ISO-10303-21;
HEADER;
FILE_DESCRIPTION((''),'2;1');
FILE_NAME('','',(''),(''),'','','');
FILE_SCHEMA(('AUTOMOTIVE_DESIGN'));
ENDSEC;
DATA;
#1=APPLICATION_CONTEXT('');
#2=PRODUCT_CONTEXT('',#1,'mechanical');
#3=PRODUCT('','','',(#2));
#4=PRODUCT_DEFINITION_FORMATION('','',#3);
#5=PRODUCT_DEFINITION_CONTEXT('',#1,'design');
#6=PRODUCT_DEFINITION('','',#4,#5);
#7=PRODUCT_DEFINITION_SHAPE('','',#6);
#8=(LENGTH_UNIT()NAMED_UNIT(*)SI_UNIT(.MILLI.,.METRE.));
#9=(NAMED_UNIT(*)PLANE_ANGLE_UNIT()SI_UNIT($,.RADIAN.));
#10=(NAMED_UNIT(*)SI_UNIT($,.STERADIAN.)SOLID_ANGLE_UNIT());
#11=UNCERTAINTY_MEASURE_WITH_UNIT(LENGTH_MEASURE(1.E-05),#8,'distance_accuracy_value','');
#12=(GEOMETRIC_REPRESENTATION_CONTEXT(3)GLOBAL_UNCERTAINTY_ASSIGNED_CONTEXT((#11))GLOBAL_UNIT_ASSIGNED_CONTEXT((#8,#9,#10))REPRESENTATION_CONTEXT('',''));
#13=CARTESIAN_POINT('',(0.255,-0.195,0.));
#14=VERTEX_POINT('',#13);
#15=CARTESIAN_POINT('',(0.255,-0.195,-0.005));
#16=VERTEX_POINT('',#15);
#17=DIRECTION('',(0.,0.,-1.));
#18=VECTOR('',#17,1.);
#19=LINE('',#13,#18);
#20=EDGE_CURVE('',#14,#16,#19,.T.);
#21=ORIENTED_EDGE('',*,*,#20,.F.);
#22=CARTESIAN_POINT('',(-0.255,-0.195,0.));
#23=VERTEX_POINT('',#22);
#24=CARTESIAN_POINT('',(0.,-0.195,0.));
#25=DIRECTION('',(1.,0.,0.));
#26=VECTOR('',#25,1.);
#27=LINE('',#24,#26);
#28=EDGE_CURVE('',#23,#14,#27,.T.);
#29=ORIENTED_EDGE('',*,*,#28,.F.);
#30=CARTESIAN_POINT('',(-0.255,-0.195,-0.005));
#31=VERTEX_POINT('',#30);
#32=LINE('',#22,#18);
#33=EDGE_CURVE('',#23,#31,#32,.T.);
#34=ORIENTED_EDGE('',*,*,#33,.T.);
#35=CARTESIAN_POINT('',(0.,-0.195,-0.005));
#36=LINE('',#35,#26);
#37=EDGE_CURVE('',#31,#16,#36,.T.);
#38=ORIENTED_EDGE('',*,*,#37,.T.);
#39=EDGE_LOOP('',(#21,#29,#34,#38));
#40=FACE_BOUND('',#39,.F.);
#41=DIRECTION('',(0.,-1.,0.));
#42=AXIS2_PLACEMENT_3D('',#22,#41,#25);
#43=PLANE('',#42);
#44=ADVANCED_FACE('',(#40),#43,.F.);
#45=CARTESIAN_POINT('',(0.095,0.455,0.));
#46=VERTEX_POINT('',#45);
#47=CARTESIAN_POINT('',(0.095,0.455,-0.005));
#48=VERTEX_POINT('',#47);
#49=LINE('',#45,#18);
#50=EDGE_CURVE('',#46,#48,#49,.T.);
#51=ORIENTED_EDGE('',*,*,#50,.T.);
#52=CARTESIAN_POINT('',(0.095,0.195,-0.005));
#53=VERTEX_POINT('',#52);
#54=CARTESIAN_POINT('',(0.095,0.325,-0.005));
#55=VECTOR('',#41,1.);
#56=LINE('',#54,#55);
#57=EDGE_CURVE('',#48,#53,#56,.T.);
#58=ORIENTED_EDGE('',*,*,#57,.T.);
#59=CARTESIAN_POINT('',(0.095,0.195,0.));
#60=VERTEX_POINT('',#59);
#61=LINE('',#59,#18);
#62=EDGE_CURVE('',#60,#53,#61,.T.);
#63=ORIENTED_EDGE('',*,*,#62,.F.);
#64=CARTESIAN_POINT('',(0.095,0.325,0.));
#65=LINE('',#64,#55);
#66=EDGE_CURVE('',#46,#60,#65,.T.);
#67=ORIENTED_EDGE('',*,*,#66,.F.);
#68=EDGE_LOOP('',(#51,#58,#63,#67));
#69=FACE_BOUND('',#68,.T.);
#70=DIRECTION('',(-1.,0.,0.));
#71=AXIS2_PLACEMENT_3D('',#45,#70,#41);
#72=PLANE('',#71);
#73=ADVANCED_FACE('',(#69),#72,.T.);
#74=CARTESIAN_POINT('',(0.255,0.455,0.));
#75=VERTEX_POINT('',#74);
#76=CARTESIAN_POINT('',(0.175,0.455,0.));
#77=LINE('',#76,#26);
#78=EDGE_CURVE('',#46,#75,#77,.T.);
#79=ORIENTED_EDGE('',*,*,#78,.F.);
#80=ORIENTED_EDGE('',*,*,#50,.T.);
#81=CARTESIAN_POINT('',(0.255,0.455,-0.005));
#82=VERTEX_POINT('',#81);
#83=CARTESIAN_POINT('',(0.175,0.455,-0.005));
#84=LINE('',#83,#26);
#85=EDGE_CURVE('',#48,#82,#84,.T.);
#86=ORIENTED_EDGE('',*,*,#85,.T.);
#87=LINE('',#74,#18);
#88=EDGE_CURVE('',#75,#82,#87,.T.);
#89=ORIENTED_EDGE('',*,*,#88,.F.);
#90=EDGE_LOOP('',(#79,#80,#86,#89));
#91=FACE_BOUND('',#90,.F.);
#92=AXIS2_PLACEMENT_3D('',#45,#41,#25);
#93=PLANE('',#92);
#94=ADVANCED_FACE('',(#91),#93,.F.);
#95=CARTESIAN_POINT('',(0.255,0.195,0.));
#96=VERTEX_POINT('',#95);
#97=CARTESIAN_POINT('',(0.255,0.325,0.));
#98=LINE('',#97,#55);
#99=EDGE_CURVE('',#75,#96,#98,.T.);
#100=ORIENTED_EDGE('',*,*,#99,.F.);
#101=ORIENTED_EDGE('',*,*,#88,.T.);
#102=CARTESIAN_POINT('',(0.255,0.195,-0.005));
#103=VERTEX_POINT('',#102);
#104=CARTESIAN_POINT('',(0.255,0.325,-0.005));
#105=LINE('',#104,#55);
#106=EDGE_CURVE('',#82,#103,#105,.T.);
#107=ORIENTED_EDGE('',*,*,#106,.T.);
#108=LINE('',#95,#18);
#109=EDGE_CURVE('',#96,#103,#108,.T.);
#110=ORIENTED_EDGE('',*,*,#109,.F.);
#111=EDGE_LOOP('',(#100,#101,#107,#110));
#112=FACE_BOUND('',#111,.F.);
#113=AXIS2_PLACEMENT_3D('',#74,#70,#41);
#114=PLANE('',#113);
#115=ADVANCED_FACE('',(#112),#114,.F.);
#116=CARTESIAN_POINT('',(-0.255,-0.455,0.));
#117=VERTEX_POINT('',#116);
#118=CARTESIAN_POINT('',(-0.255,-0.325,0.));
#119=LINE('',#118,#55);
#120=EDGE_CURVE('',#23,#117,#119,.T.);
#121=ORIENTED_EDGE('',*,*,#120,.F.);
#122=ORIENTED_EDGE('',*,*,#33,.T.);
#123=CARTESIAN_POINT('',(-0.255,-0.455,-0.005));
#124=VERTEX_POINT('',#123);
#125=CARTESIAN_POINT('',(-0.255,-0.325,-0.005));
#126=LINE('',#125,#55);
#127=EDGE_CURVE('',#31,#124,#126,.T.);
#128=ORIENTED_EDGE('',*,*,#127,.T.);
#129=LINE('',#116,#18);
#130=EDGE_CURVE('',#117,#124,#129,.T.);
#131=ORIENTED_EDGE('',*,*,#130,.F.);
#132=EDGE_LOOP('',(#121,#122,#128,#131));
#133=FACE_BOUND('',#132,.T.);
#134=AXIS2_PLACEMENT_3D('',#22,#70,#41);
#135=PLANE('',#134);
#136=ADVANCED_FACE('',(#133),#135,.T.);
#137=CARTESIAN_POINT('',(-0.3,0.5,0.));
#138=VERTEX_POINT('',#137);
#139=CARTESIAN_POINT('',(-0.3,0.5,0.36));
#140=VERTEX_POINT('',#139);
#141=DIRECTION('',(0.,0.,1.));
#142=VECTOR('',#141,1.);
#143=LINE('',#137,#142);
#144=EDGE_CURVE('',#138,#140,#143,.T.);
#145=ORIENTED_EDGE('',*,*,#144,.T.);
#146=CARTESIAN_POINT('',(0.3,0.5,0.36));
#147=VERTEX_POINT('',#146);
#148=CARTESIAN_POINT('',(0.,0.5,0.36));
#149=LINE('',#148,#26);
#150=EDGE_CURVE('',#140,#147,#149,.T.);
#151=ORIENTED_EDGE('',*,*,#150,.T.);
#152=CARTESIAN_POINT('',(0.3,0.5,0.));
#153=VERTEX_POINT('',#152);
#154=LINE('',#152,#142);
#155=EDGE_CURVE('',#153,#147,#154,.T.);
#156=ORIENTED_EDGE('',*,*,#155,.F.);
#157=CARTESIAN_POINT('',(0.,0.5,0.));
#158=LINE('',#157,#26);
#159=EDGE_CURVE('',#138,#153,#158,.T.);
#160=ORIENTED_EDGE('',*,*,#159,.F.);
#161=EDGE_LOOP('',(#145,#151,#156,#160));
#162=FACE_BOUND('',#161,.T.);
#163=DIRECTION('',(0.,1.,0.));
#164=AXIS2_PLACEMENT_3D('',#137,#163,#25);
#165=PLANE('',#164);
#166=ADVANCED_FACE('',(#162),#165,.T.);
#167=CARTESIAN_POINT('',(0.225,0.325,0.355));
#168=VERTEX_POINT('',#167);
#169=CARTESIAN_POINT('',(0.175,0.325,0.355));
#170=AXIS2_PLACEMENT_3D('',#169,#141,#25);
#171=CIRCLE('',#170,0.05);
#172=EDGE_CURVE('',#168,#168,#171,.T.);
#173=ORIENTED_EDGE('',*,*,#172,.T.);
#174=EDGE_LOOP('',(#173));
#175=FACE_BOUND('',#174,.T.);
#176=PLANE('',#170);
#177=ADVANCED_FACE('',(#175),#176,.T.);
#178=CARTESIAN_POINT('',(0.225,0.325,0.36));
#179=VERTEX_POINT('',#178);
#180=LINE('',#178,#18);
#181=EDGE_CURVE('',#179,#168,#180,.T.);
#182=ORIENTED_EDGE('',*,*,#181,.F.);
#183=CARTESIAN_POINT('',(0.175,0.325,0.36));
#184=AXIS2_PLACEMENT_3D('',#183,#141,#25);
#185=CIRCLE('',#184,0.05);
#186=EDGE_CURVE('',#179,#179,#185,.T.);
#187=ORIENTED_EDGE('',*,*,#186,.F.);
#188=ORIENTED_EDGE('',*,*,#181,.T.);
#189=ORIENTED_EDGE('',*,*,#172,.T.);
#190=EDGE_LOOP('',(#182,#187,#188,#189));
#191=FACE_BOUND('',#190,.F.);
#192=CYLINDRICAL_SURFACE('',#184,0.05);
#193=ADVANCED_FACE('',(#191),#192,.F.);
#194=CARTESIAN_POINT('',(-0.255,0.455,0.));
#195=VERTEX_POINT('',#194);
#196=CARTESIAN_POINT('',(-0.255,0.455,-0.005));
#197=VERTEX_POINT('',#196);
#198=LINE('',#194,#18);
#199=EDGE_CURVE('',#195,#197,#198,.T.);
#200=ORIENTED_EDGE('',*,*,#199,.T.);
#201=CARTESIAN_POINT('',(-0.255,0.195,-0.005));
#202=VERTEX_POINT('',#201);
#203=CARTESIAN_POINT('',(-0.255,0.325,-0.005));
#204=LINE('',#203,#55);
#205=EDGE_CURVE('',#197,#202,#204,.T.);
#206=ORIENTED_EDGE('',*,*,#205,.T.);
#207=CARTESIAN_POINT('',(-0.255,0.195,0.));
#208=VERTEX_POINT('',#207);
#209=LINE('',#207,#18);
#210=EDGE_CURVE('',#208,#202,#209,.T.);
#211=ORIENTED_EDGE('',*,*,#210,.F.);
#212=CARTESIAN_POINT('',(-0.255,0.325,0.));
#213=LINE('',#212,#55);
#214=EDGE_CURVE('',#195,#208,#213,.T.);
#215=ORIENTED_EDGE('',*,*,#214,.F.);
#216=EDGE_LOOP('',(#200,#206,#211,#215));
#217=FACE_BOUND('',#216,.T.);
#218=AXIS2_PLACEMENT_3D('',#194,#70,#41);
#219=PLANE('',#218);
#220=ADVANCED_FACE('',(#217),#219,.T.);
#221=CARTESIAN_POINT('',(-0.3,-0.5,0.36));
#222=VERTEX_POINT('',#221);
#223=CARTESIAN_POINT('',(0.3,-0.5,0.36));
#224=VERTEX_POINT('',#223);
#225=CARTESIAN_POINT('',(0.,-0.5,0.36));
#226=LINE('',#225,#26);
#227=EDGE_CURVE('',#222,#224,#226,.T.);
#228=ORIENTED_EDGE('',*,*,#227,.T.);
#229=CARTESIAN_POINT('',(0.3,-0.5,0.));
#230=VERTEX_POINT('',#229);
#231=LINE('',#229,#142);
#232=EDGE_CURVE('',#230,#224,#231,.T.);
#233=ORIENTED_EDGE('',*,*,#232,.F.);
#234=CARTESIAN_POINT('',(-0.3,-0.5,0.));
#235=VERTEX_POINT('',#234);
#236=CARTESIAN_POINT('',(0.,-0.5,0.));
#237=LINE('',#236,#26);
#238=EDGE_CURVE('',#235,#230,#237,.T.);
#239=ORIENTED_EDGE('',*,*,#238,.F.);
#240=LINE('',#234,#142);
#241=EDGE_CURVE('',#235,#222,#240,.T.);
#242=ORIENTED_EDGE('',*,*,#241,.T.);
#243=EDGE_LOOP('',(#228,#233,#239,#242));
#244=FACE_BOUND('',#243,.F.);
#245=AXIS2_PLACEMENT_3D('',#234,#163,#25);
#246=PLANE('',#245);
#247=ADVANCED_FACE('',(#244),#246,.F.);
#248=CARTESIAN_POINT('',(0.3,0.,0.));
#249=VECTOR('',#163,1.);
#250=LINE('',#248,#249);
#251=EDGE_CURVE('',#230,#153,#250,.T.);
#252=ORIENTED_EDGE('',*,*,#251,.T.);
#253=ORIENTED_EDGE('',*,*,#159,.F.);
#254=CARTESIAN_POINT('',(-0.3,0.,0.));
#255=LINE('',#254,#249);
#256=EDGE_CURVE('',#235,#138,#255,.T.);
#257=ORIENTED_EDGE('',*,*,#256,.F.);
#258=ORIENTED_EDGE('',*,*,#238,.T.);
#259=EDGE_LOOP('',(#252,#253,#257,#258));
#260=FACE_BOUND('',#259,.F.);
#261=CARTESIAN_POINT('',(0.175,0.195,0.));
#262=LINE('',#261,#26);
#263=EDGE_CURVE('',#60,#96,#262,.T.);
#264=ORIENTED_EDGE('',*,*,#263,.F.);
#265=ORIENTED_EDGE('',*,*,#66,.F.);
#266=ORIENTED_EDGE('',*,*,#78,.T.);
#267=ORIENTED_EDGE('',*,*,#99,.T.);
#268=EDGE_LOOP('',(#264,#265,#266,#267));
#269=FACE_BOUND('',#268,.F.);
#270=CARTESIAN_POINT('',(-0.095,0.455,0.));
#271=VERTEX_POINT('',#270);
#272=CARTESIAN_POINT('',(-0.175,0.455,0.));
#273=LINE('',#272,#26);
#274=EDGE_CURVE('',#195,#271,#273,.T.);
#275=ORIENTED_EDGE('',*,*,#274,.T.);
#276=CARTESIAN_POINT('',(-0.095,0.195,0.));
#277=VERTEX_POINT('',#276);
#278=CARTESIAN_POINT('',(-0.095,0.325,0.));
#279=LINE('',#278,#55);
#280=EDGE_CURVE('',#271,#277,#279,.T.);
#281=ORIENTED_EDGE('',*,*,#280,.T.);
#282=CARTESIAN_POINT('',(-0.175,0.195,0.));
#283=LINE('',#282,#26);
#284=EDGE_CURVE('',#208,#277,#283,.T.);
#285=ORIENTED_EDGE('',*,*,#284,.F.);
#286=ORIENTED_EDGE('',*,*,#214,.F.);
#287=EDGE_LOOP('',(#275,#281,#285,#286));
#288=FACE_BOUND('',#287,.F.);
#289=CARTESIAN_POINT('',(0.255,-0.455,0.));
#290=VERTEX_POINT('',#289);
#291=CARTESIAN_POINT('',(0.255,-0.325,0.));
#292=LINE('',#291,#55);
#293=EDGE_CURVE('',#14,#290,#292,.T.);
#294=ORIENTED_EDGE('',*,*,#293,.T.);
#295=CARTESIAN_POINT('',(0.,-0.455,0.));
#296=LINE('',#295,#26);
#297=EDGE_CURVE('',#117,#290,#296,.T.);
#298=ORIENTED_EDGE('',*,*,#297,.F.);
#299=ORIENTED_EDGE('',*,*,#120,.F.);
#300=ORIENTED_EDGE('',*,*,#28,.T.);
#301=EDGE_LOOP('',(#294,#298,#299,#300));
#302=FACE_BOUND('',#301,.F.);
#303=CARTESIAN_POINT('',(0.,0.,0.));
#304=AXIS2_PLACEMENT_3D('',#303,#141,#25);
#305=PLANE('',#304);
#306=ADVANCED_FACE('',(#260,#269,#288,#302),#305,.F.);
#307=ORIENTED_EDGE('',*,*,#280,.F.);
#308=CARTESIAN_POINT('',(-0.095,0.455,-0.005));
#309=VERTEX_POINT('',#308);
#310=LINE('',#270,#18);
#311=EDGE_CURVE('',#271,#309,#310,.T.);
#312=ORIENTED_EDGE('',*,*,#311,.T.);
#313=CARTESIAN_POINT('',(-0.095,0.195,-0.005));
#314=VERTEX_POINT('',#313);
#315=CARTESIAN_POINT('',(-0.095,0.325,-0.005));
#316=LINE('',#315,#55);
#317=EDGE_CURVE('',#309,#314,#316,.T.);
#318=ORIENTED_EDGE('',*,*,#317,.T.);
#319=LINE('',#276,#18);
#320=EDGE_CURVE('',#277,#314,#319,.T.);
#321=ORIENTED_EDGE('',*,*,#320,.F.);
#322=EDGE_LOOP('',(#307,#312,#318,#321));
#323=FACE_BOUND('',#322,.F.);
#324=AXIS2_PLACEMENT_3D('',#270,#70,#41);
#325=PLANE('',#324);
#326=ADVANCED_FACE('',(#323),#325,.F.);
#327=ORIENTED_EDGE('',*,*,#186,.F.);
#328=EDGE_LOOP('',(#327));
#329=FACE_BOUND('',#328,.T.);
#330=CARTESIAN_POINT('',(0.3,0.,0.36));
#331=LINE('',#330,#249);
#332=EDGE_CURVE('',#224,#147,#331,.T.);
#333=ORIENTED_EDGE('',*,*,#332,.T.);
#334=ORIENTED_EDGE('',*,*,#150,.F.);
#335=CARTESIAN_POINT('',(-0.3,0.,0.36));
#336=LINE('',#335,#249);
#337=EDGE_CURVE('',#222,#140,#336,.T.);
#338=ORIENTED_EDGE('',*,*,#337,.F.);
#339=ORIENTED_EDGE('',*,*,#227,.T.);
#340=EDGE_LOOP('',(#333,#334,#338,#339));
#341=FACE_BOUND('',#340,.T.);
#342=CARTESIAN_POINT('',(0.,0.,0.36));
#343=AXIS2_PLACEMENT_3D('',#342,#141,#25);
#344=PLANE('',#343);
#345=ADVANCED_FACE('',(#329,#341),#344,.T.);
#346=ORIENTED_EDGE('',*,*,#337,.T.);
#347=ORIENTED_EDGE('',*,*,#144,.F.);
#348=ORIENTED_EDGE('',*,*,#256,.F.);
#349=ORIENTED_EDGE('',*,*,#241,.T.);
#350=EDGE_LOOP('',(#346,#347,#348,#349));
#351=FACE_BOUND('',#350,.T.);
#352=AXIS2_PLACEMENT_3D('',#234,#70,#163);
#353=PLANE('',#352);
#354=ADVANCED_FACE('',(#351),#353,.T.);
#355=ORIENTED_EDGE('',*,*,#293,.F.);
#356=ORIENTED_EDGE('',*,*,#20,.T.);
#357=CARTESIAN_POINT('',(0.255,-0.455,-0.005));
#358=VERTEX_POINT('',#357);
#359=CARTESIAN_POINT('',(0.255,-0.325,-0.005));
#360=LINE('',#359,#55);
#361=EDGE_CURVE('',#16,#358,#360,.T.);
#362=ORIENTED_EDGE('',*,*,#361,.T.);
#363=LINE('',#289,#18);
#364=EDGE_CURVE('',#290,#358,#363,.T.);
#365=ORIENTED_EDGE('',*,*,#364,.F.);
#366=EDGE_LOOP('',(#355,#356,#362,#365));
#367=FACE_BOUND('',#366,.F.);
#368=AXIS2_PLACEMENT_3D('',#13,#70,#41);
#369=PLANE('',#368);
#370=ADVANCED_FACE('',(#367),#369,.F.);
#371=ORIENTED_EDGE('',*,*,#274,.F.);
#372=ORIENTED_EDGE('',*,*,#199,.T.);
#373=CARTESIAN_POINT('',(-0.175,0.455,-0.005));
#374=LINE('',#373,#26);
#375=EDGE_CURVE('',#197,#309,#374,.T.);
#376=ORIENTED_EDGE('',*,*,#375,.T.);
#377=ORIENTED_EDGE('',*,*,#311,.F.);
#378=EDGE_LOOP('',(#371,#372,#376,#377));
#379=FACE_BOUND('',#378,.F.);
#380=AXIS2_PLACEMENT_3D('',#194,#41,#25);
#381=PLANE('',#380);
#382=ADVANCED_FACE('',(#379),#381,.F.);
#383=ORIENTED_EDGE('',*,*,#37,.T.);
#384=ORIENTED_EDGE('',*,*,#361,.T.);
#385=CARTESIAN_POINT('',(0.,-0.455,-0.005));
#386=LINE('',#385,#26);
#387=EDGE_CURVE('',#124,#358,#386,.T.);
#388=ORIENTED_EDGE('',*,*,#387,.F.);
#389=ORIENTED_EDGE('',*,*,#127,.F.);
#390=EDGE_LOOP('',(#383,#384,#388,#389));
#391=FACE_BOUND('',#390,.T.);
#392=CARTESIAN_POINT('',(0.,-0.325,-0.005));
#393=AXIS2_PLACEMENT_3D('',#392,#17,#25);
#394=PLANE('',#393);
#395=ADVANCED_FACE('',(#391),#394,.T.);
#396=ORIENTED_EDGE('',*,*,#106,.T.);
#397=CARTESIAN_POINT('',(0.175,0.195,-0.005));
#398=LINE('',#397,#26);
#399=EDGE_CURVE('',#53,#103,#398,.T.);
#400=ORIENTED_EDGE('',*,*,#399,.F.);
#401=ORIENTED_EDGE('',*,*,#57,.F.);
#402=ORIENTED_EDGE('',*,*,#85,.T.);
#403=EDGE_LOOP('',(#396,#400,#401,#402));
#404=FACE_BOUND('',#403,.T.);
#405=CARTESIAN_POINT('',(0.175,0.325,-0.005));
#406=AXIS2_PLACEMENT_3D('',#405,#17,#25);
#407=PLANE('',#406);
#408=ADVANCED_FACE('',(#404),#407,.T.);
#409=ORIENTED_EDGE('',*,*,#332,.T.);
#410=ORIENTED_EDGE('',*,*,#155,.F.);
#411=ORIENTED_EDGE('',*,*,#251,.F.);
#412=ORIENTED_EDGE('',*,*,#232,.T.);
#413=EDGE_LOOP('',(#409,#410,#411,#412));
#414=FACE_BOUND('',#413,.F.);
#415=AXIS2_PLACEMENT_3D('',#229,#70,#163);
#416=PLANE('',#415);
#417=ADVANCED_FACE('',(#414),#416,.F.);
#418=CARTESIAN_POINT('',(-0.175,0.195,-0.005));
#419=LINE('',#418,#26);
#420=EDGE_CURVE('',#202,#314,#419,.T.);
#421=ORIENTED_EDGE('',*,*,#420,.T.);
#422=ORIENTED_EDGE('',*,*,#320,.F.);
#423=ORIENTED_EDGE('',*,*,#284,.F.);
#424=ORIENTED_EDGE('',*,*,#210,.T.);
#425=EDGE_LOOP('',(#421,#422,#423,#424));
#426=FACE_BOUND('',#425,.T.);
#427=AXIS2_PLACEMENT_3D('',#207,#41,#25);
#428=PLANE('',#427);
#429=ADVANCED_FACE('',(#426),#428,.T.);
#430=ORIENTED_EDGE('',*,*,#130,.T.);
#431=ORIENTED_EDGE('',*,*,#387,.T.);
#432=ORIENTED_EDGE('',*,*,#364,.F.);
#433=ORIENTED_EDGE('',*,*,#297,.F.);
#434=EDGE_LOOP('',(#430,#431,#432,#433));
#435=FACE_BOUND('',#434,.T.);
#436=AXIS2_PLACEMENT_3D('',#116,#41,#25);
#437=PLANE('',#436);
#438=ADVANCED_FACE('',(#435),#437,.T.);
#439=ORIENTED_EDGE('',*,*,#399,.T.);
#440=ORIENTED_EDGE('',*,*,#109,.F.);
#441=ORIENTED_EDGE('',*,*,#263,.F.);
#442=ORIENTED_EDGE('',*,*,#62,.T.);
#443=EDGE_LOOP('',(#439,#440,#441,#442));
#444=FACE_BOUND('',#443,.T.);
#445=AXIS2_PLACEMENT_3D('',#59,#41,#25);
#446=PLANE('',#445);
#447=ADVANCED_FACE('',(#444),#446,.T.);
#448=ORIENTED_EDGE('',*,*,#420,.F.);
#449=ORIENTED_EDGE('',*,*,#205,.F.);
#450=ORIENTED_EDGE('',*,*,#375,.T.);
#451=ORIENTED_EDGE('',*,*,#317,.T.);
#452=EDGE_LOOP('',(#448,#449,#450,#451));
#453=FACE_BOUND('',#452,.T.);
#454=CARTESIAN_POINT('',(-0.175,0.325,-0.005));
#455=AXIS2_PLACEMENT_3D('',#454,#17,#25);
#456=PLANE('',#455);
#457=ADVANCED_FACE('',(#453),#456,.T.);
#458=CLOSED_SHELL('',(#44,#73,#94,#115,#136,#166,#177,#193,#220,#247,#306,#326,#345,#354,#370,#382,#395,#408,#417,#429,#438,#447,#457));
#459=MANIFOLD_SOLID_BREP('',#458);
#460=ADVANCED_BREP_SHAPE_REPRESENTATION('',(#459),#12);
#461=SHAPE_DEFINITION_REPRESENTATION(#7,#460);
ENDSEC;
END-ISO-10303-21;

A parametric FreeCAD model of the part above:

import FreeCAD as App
import Part
import Sketcher

V = App.Vector
Q = App.Units.Quantity


def add_polygon(sketch, points):
    """Adds a closed chain of lines whose ends are joined by coincident constraints."""
    first, n = sketch.GeometryCount, len(points)
    for a, b in zip(points, points[1:] + points[:1]):
        sketch.addGeometry(Part.LineSegment(App.Vector(*a, 0), App.Vector(*b, 0)), False)
    for i in range(n):
        sketch.addConstraint(Sketcher.Constraint("Coincident", first + i, 2, first + (i + 1) % n, 1))

doc = App.newDocument("Part")
body = doc.addObject("PartDesign::Body", "Body")

sketch1 = body.newObject("Sketcher::SketchObject", "Sketch")
sketch1.AttachmentSupport = (doc.getObject("XY_Plane"), [""])
sketch1.MapMode = "FlatFace"
add_polygon(sketch1, [(-0.3, 0.5), (-0.3, -0.5), (0.3, -0.5), (0.3, 0.5)])
sketch1.addConstraint(Sketcher.Constraint("Vertical", 0))
sketch1.addConstraint(Sketcher.Constraint("Horizontal", 1))
sketch1.addConstraint(Sketcher.Constraint("Vertical", 2))
sketch1.addConstraint(Sketcher.Constraint("Horizontal", 3))
sketch1.addConstraint(Sketcher.Constraint("Symmetric", 0, 2, 2, 2, -1, 1))
sketch1.addConstraint(Sketcher.Constraint("DistanceY", 0, 2, 0, 1, Q("1 mm")))
sketch1.addConstraint(Sketcher.Constraint("DistanceX", 1, 1, 1, 2, Q("0.6 mm")))
pad1 = body.newObject("PartDesign::Pad", "Pad")
pad1.Profile = sketch1
pad1.Length = 0.36

sketch2 = body.newObject("Sketcher::SketchObject", "Sketch001")
sketch2.AttachmentSupport = (doc.getObject("XY_Plane"), [""])
sketch2.MapMode = "FlatFace"
sketch2.AttachmentOffset = App.Placement(V(0, 0, 0.36), App.Rotation())
sketch2.addGeometry(Part.Circle(V(0.17, 0.33, 0), V(0, 0, 1), 0.05), False)
sketch2.addConstraint(Sketcher.Constraint("Diameter", 0, Q("0.1 mm")))
sketch2.addConstraint(Sketcher.Constraint("DistanceX", -1, 1, 0, 3, Q("0.175 mm")))
sketch2.addConstraint(Sketcher.Constraint("DistanceY", -1, 1, 0, 3, Q("0.325 mm")))
pocket1 = body.newObject("PartDesign::Pocket", "Pocket")
pocket1.Profile = sketch2
pocket1.Length = 0.005

sketch3 = body.newObject("Sketcher::SketchObject", "Sketch002")
sketch3.AttachmentSupport = (doc.getObject("XY_Plane"), [""])
sketch3.MapMode = "FlatFace"
add_polygon(sketch3, [(0.1, 0.2), (0.1, 0.46), (0.26, 0.46), (0.26, 0.2)])
add_polygon(sketch3, [(-0.26, -0.46), (-0.26, -0.2), (0.26, -0.2), (0.26, -0.46)])
add_polygon(sketch3, [(-0.26, 0.2), (-0.26, 0.46), (-0.1, 0.46), (-0.1, 0.2)])
sketch3.addConstraint(Sketcher.Constraint("Vertical", 0))
sketch3.addConstraint(Sketcher.Constraint("Horizontal", 1))
sketch3.addConstraint(Sketcher.Constraint("Vertical", 2))
sketch3.addConstraint(Sketcher.Constraint("Horizontal", 3))
sketch3.addConstraint(Sketcher.Constraint("Vertical", 4))
sketch3.addConstraint(Sketcher.Constraint("Horizontal", 5))
sketch3.addConstraint(Sketcher.Constraint("Vertical", 6))
sketch3.addConstraint(Sketcher.Constraint("Horizontal", 7))
sketch3.addConstraint(Sketcher.Constraint("Vertical", 8))
sketch3.addConstraint(Sketcher.Constraint("Horizontal", 9))
sketch3.addConstraint(Sketcher.Constraint("Vertical", 10))
sketch3.addConstraint(Sketcher.Constraint("Horizontal", 11))
sketch3.addConstraint(Sketcher.Constraint("Symmetric", 2, 2, 4, 2, -1, 1))
sketch3.addConstraint(Sketcher.Constraint("Symmetric", 6, 2, 8, 2, -1, 1))
sketch3.addConstraint(Sketcher.Constraint("Symmetric", 1, 2, 8, 2, -2))
sketch3.addConstraint(Sketcher.Constraint("Symmetric", 3, 2, 10, 2, -2))
sketch3.addConstraint(Sketcher.Constraint("DistanceX", 1, 1, 1, 2, Q("0.16 mm")))
sketch3.addConstraint(Sketcher.Constraint("DistanceX", 5, 1, 5, 2, Q("0.51 mm")))
sketch3.addConstraint(Sketcher.Constraint("DistanceY", 0, 1, 0, 2, Q("0.26 mm")))
sketch3.addConstraint(Sketcher.Constraint("DistanceY", 4, 2, 3, 2, Q("0.39 mm")))
pad2 = body.newObject("PartDesign::Pad", "Pad001")
pad2.Profile = sketch3
pad2.Length = 0.005
pad2.Reversed = True

doc.recompute()
